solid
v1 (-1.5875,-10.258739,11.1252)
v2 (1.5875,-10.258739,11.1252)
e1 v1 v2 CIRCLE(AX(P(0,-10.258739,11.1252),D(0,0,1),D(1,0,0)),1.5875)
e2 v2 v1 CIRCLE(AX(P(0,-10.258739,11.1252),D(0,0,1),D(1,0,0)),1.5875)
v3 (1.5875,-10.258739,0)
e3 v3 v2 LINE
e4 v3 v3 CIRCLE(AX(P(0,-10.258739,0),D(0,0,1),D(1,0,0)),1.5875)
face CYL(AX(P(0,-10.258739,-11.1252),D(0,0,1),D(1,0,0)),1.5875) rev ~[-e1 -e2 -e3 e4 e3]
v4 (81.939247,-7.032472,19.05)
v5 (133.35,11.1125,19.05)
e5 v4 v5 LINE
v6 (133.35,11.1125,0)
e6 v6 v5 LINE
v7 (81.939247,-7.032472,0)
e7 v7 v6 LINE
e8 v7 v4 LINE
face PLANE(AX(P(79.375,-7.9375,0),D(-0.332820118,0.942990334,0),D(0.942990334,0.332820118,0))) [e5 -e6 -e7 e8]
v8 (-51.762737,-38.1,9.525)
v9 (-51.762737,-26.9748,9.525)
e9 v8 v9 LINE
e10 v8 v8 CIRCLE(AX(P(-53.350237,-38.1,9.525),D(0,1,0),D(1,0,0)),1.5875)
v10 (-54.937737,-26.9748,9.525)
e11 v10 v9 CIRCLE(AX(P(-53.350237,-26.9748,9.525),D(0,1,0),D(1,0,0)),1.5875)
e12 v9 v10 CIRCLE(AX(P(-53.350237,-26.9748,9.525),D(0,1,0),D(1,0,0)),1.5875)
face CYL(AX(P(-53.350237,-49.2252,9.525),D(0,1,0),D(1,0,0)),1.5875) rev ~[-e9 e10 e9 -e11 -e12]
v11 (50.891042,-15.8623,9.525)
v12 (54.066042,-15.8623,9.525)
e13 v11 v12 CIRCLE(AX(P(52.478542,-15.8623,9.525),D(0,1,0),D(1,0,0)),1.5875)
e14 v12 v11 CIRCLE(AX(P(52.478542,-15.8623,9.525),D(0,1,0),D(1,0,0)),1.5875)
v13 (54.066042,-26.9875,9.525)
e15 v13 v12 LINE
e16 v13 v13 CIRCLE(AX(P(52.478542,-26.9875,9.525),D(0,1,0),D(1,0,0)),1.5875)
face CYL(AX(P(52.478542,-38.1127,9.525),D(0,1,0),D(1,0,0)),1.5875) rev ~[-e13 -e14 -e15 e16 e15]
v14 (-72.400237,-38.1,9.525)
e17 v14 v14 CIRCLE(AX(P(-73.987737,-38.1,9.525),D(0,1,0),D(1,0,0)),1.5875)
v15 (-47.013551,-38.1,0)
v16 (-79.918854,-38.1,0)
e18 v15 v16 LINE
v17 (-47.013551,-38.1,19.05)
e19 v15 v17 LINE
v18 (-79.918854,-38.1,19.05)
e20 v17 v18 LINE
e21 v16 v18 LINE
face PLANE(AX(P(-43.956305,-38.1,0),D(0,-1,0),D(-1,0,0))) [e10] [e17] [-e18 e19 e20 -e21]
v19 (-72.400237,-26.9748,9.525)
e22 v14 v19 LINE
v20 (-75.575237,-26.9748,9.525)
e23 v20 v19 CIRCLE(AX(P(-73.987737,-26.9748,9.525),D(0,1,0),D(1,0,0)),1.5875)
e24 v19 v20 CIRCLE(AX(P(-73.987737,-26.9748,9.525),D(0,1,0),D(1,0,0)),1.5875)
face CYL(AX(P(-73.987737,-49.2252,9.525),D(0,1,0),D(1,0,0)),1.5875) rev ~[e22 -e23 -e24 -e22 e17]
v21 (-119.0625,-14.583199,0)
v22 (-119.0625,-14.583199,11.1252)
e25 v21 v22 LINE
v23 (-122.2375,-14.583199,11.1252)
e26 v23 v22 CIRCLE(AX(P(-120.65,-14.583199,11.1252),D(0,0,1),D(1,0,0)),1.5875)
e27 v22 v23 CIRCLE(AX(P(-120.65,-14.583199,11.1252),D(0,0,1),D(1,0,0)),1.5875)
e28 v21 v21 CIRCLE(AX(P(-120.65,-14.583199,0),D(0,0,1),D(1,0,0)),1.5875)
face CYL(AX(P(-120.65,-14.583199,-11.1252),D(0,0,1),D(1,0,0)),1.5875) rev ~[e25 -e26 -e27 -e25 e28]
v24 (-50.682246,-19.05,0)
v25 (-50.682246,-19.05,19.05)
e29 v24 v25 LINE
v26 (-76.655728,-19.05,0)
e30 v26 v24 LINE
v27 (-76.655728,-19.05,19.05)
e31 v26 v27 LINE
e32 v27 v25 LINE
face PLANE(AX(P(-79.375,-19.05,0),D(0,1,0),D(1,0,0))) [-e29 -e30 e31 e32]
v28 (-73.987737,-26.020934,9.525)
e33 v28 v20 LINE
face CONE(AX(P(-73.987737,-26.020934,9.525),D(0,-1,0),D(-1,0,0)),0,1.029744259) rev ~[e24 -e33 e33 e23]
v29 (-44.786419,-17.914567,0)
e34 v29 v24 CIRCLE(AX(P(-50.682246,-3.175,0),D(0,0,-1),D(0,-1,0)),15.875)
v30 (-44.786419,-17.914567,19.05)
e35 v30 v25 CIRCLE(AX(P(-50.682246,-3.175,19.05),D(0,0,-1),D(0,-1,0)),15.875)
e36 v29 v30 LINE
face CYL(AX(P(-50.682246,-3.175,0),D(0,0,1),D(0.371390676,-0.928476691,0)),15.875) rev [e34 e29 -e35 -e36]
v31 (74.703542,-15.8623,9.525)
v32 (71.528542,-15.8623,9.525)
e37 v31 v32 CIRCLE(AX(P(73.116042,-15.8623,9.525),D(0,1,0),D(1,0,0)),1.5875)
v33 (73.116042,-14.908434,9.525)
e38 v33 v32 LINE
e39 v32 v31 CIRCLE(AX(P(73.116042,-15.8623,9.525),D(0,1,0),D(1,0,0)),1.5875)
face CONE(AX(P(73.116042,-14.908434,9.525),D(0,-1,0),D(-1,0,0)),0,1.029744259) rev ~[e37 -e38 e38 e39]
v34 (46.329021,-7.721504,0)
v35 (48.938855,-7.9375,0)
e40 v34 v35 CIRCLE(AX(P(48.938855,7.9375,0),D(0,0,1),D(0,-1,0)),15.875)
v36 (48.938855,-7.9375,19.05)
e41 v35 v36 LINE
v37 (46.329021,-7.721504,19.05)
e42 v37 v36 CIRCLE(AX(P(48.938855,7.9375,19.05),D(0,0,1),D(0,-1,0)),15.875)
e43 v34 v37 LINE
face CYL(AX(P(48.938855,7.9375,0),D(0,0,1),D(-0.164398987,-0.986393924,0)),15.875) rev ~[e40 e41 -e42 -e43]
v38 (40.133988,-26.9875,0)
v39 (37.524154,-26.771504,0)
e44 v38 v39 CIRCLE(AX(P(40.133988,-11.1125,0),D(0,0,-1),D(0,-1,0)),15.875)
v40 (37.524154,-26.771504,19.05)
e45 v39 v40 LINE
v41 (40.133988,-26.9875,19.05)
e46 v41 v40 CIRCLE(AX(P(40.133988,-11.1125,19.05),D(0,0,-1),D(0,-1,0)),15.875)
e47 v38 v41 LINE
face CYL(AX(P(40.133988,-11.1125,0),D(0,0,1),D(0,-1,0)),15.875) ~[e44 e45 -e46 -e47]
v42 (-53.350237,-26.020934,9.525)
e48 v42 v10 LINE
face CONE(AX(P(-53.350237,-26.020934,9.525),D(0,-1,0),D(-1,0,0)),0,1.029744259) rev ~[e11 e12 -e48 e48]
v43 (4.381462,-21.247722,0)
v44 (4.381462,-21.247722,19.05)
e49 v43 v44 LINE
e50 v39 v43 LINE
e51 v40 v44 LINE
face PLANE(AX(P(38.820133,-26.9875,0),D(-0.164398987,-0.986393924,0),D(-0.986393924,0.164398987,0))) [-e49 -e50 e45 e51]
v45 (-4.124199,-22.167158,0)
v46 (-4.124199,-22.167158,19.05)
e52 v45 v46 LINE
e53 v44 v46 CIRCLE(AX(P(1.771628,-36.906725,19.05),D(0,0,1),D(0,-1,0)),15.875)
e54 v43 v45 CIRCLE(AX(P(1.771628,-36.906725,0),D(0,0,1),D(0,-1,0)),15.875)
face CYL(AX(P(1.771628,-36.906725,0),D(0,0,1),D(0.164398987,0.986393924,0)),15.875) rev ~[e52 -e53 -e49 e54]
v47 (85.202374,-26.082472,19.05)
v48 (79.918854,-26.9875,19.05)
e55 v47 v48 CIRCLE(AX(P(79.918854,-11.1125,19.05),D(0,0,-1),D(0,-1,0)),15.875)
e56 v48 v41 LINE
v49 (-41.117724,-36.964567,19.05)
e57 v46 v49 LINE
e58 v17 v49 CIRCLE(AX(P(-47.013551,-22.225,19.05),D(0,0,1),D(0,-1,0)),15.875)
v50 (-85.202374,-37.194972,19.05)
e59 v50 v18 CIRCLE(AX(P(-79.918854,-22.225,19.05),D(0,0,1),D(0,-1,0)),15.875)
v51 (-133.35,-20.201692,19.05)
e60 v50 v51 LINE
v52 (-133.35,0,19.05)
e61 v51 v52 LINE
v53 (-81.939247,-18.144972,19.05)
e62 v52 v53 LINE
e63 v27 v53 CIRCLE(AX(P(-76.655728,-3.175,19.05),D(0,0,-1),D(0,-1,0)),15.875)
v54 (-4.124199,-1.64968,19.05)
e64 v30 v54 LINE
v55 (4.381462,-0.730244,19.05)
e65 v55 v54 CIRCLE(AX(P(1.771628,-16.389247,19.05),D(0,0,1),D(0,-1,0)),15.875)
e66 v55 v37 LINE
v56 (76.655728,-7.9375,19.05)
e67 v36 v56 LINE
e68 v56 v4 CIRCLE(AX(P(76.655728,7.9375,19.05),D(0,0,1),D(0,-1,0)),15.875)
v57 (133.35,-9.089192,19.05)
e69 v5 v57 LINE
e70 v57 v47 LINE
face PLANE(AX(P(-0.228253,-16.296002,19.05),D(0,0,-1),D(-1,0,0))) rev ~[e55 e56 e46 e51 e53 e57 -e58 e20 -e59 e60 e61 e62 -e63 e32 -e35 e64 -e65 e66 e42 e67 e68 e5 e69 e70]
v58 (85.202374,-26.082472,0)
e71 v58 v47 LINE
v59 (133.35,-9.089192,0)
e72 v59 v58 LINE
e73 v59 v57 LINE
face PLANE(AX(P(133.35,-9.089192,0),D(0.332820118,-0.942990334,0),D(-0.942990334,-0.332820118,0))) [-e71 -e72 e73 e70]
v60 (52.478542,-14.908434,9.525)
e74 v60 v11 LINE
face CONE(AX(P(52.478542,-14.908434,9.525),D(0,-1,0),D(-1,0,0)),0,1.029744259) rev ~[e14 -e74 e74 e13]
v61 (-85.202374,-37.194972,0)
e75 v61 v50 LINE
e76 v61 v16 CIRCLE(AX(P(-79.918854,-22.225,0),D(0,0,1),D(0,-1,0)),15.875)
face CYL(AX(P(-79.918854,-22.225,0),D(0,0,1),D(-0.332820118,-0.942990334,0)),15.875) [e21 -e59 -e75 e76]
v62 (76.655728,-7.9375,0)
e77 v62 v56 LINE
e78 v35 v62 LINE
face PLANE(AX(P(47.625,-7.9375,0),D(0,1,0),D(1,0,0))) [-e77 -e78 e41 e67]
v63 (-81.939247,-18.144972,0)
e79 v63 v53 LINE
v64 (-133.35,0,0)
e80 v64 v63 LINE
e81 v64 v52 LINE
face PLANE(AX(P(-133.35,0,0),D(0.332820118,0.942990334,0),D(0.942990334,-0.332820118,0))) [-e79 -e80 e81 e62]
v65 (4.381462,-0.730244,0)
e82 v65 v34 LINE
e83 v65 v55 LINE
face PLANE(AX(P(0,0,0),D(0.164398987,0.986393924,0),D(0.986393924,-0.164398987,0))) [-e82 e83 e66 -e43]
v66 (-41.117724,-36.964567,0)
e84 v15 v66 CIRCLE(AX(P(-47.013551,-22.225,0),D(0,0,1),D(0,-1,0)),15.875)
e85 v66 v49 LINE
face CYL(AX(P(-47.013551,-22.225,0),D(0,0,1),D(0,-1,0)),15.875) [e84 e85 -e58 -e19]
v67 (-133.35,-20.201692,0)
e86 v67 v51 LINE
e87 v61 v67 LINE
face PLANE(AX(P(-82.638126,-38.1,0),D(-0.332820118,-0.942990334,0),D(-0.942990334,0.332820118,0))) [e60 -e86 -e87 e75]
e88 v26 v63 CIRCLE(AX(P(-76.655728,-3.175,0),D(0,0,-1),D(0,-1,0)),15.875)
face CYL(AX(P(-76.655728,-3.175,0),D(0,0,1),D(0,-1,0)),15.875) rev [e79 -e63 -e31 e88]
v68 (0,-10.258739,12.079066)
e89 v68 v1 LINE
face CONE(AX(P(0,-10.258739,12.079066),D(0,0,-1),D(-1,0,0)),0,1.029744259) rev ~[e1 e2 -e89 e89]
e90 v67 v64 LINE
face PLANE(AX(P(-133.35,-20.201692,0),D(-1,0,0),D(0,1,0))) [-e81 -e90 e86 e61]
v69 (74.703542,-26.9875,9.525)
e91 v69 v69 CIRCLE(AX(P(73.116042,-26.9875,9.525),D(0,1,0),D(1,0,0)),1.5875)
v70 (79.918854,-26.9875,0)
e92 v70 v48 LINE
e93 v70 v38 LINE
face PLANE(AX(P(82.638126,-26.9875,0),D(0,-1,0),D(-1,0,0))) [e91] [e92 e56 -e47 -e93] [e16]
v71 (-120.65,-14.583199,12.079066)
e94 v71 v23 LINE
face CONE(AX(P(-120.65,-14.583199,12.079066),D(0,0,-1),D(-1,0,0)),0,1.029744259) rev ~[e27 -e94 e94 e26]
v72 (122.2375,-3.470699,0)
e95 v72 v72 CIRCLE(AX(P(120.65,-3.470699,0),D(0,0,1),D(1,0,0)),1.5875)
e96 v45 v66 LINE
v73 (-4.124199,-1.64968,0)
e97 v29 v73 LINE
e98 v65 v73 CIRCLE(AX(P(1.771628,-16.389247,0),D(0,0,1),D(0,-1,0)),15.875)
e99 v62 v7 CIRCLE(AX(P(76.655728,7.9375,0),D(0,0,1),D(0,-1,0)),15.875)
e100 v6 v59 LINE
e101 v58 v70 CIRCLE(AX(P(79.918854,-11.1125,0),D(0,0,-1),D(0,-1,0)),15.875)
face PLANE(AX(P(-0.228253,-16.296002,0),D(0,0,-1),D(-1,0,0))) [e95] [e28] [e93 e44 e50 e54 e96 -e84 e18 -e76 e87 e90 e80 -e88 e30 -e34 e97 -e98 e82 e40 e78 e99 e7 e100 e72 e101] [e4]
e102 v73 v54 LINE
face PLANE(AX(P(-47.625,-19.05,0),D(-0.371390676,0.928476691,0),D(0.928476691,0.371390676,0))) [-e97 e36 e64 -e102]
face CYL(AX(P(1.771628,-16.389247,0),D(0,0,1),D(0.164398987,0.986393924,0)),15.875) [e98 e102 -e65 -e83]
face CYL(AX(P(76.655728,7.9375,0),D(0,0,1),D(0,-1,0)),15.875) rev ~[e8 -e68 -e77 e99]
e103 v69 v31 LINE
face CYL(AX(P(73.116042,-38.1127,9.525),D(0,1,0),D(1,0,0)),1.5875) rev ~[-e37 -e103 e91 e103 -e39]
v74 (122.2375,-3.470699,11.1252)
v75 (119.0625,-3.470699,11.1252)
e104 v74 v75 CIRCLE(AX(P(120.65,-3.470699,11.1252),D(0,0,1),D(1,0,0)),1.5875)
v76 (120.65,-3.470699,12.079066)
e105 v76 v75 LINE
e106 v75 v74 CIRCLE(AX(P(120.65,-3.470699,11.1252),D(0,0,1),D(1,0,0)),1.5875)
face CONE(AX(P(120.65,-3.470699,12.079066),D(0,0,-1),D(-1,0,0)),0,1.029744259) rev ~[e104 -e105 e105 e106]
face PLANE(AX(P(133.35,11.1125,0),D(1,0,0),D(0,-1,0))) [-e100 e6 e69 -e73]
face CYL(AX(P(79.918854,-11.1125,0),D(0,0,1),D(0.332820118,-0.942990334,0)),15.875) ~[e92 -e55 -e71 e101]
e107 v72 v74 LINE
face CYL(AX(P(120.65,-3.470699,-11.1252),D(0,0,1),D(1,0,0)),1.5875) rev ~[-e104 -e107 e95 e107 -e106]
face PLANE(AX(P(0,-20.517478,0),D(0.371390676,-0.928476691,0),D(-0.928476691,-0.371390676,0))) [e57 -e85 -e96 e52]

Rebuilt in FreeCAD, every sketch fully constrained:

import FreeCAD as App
import Part
import Sketcher
from FreeCAD import Vector
Q = App.Units.Quantity


def edges_at(feature, points):
    """Names of the edges that pass closest to the given points."""
    edges = feature.Shape.Edges
    near = lambda p: min(range(len(edges)), key=lambda i: edges[i].distToShape(Part.Vertex(*p))[0])
    return sorted({f"Edge{near(p) + 1}" for p in points})


def add_polygon(sketch, points):
    """Adds a closed chain of lines whose ends are joined by coincident constraints."""
    first, n = sketch.GeometryCount, len(points)
    for a, b in zip(points, points[1:] + points[:1]):
        sketch.addGeometry(Part.LineSegment(App.Vector(*a, 0), App.Vector(*b, 0)), False)
    for i in range(n):
        sketch.addConstraint(Sketcher.Constraint("Coincident", first + i, 2, first + (i + 1) % n, 1))

doc = App.newDocument("Part")
body = doc.addObject("PartDesign::Body", "Body")

# Sketch on XY plane
sketch1 = body.newObject("Sketcher::SketchObject", "Sketch")
sketch1.AttachmentSupport = (doc.getObject("XY_Plane"), [""])
sketch1.MapMode = "FlatFace"
add_polygon(sketch1, [(48, -8), (0, 0), (-48, -19), (-79, -19), (-133, 0), (-133, -20), (-83, -38), (-44, -38), (0, -21), (39, -27), (83, -27), (133, -9), (133, 11), (79, -8)])  # lines 0-13
sketch1.addConstraint(Sketcher.Constraint("Horizontal", 2))
sketch1.addConstraint(Sketcher.Constraint("Vertical", 4))
sketch1.addConstraint(Sketcher.Constraint("Horizontal", 6))
sketch1.addConstraint(Sketcher.Constraint("Horizontal", 9))
sketch1.addConstraint(Sketcher.Constraint("Vertical", 11))
sketch1.addConstraint(Sketcher.Constraint("Horizontal", 13))
sketch1.addConstraint(Sketcher.Constraint("Coincident", 0, 2, -1, 1))
sketch1.addConstraint(Sketcher.Constraint("PointOnObject", 3, 2, -1))
sketch1.addConstraint(Sketcher.Constraint("PointOnObject", 7, 2, -2))
sketch1.addConstraint(Sketcher.Constraint("Parallel", 3, 5))
sketch1.addConstraint(Sketcher.Constraint("Parallel", 1, 7))
sketch1.addConstraint(Sketcher.Constraint("Parallel", 0, 8))
sketch1.addConstraint(Sketcher.Constraint("Parallel", 10, 12))
sketch1.addConstraint(Sketcher.Constraint("Equal", 2, 13))
sketch1.addConstraint(Sketcher.Constraint("Equal", 4, 11))
sketch1.addConstraint(Sketcher.Constraint("Equal", 5, 10))
sketch1.addConstraint(Sketcher.Constraint("Equal", 3, 12))
sketch1.addConstraint(Sketcher.Constraint("DistanceX", 2, 2, 2, 1, Q("1.25 in")))
sketch1.addConstraint(Sketcher.Constraint("DistanceY", 5, 2, -1, 1, Q("1.5 in")))
sketch1.addConstraint(Sketcher.Constraint("DistanceY", 9, 2, 11, 2, Q("1.5 in")))
sketch1.addConstraint(Sketcher.Constraint("DistanceY", 1, 2, -1, 1, Q("0.75 in")))
sketch1.addConstraint(Sketcher.Constraint("DistanceX", 3, 2, -1, 1, Q("5.25 in")))
sketch1.addConstraint(Sketcher.Constraint("DistanceX", -1, 1, 10, 2, Q("5.25 in")))
sketch1.addConstraint(Sketcher.Constraint("DistanceX", 1, 2, -1, 1, Q("1.875 in")))
sketch1.addConstraint(Sketcher.Constraint("DistanceY", 8, 2, -1, 1, Q("1.0625 in")))
sketch1.addConstraint(Sketcher.Constraint("DistanceX", 6, 1, 6, 2, 38.681821))
sketch1.addConstraint(Sketcher.Constraint("DistanceY", 4, 2, 4, 1, 20.201692))
pad1 = body.newObject("PartDesign::Pad", "Pad")
pad1.Profile = sketch1
pad1.Length = Q("0.75 in")

# Sketch on XY plane
sketch2 = body.newObject("Sketcher::SketchObject", "Sketch001")
sketch2.AttachmentSupport = (doc.getObject("XY_Plane"), [""])
sketch2.MapMode = "FlatFace"
sketch2.addGeometry(Part.Circle(Vector(120.7, -3.5, 0), Vector(0, 0, 1), 1.6), False)
sketch2.addGeometry(Part.Circle(Vector(0, -10.3, 0), Vector(0, 0, 1), 1.6), False)
sketch2.addGeometry(Part.Circle(Vector(-120.7, -14.6, 0), Vector(0, 0, 1), 1.6), False)
sketch2.addConstraint(Sketcher.Constraint("Equal", 0, 1))
sketch2.addConstraint(Sketcher.Constraint("Equal", 1, 2))
sketch2.addConstraint(Sketcher.Constraint("PointOnObject", 1, 3, -2))
sketch2.addConstraint(Sketcher.Constraint("Diameter", 0, Q("0.125 in")))
sketch2.addConstraint(Sketcher.Constraint("DistanceX", 2, 3, 0, 3, Q("9.5 in")))
sketch2.addConstraint(Sketcher.Constraint("DistanceX", -1, 1, 0, 3, Q("4.75 in")))
sketch2.addConstraint(Sketcher.Constraint("DistanceY", 2, 3, 0, 3, Q("0.4375 in")))
sketch2.addConstraint(Sketcher.Constraint("DistanceY", 0, 3, -1, 1, 3.470699))
sketch2.addConstraint(Sketcher.Constraint("DistanceY", 1, 3, -1, 1, 10.258739))
doc.recompute()
hole = body.newObject("PartDesign::Hole", "Hole")
hole.Profile = sketch2
hole.ThreadType = "None"
hole.Diameter = Q("0.125 in")
hole.DepthType = "Dimension"
hole.Depth = Q("0.438 in")
hole.DrillPoint = "Angled"
hole.DrillPointAngle = 118
hole.Reversed = True
doc.recompute()

fillet = body.newObject("PartDesign::Fillet", "Fillet")
fillet.Base = (hole, edges_at(hole, [
    (0, 0, 9.525),
    (47.625, -7.938, 9.525),
    (79.375, -7.938, 9.525),
    (82.638, -26.988, 9.525),
    (38.82, -26.988, 9.525),
    (0, -20.517, 9.525),
    (-43.956, -38.1, 9.525),
    (-82.638, -38.1, 9.525),
    (-79.375, -19.05, 9.525),
    (-47.625, -19.05, 9.525),
]))
fillet.Radius = Q("0.625 in")

# Sketch on XZ plane
sketch3 = body.newObject("Sketcher::SketchObject", "Sketch002")
sketch3.AttachmentSupport = (doc.getObject("XZ_Plane"), [""])
sketch3.MapMode = "FlatFace"
sketch3.AttachmentOffset = App.Placement(Vector(0, 0, 1.0625 * 25.4), App.Rotation())
sketch3.addGeometry(Part.Circle(Vector(73.1, 9.5, 0), Vector(0, 0, 1), 1.6), False)
sketch3.addGeometry(Part.Circle(Vector(52.5, 9.5, 0), Vector(0, 0, 1), 1.6), False)
sketch3.addConstraint(Sketcher.Constraint("Equal", 0, 1))
sketch3.addConstraint(Sketcher.Constraint("Horizontal", 0, 3, 1, 3))
sketch3.addConstraint(Sketcher.Constraint("Diameter", 0, Q("0.125 in")))
sketch3.addConstraint(Sketcher.Constraint("DistanceY", -1, 1, 0, 3, Q("0.375 in")))
sketch3.addConstraint(Sketcher.Constraint("DistanceX", 1, 3, 0, 3, Q("0.8125 in")))
sketch3.addConstraint(Sketcher.Constraint("DistanceX", -1, 1, 0, 3, 73.116042))
doc.recompute()
hole2 = body.newObject("PartDesign::Hole", "Hole001")
hole2.Profile = sketch3
hole2.ThreadType = "None"
hole2.Diameter = Q("0.125 in")
hole2.DepthType = "Dimension"
hole2.Depth = Q("0.438 in")
hole2.DrillPoint = "Angled"
hole2.DrillPointAngle = 118

# Sketch on XZ plane
sketch4 = body.newObject("Sketcher::SketchObject", "Sketch003")
sketch4.AttachmentSupport = (doc.getObject("XZ_Plane"), [""])
sketch4.MapMode = "FlatFace"
sketch4.AttachmentOffset = App.Placement(Vector(0, 0, 1.5 * 25.4), App.Rotation())
sketch4.addGeometry(Part.Circle(Vector(-53.4, 9.5, 0), Vector(0, 0, 1), 1.6), False)
sketch4.addGeometry(Part.Circle(Vector(-74, 9.5, 0), Vector(0, 0, 1), 1.6), False)
sketch4.addConstraint(Sketcher.Constraint("Equal", 0, 1))
sketch4.addConstraint(Sketcher.Constraint("Horizontal", 0, 3, 1, 3))
sketch4.addConstraint(Sketcher.Constraint("Diameter", 0, Q("0.125 in")))
sketch4.addConstraint(Sketcher.Constraint("DistanceY", -1, 1, 0, 3, Q("0.375 in")))
sketch4.addConstraint(Sketcher.Constraint("DistanceX", 1, 3, 0, 3, Q("0.8125 in")))
sketch4.addConstraint(Sketcher.Constraint("DistanceX", 0, 3, -1, 1, 53.350237))
doc.recompute()
hole3 = body.newObject("PartDesign::Hole", "Hole002")
hole3.Profile = sketch4
hole3.ThreadType = "None"
hole3.Diameter = Q("0.125 in")
hole3.DepthType = "Dimension"
hole3.Depth = Q("0.438 in")
hole3.DrillPoint = "Angled"
hole3.DrillPointAngle = 118

doc.recompute()
